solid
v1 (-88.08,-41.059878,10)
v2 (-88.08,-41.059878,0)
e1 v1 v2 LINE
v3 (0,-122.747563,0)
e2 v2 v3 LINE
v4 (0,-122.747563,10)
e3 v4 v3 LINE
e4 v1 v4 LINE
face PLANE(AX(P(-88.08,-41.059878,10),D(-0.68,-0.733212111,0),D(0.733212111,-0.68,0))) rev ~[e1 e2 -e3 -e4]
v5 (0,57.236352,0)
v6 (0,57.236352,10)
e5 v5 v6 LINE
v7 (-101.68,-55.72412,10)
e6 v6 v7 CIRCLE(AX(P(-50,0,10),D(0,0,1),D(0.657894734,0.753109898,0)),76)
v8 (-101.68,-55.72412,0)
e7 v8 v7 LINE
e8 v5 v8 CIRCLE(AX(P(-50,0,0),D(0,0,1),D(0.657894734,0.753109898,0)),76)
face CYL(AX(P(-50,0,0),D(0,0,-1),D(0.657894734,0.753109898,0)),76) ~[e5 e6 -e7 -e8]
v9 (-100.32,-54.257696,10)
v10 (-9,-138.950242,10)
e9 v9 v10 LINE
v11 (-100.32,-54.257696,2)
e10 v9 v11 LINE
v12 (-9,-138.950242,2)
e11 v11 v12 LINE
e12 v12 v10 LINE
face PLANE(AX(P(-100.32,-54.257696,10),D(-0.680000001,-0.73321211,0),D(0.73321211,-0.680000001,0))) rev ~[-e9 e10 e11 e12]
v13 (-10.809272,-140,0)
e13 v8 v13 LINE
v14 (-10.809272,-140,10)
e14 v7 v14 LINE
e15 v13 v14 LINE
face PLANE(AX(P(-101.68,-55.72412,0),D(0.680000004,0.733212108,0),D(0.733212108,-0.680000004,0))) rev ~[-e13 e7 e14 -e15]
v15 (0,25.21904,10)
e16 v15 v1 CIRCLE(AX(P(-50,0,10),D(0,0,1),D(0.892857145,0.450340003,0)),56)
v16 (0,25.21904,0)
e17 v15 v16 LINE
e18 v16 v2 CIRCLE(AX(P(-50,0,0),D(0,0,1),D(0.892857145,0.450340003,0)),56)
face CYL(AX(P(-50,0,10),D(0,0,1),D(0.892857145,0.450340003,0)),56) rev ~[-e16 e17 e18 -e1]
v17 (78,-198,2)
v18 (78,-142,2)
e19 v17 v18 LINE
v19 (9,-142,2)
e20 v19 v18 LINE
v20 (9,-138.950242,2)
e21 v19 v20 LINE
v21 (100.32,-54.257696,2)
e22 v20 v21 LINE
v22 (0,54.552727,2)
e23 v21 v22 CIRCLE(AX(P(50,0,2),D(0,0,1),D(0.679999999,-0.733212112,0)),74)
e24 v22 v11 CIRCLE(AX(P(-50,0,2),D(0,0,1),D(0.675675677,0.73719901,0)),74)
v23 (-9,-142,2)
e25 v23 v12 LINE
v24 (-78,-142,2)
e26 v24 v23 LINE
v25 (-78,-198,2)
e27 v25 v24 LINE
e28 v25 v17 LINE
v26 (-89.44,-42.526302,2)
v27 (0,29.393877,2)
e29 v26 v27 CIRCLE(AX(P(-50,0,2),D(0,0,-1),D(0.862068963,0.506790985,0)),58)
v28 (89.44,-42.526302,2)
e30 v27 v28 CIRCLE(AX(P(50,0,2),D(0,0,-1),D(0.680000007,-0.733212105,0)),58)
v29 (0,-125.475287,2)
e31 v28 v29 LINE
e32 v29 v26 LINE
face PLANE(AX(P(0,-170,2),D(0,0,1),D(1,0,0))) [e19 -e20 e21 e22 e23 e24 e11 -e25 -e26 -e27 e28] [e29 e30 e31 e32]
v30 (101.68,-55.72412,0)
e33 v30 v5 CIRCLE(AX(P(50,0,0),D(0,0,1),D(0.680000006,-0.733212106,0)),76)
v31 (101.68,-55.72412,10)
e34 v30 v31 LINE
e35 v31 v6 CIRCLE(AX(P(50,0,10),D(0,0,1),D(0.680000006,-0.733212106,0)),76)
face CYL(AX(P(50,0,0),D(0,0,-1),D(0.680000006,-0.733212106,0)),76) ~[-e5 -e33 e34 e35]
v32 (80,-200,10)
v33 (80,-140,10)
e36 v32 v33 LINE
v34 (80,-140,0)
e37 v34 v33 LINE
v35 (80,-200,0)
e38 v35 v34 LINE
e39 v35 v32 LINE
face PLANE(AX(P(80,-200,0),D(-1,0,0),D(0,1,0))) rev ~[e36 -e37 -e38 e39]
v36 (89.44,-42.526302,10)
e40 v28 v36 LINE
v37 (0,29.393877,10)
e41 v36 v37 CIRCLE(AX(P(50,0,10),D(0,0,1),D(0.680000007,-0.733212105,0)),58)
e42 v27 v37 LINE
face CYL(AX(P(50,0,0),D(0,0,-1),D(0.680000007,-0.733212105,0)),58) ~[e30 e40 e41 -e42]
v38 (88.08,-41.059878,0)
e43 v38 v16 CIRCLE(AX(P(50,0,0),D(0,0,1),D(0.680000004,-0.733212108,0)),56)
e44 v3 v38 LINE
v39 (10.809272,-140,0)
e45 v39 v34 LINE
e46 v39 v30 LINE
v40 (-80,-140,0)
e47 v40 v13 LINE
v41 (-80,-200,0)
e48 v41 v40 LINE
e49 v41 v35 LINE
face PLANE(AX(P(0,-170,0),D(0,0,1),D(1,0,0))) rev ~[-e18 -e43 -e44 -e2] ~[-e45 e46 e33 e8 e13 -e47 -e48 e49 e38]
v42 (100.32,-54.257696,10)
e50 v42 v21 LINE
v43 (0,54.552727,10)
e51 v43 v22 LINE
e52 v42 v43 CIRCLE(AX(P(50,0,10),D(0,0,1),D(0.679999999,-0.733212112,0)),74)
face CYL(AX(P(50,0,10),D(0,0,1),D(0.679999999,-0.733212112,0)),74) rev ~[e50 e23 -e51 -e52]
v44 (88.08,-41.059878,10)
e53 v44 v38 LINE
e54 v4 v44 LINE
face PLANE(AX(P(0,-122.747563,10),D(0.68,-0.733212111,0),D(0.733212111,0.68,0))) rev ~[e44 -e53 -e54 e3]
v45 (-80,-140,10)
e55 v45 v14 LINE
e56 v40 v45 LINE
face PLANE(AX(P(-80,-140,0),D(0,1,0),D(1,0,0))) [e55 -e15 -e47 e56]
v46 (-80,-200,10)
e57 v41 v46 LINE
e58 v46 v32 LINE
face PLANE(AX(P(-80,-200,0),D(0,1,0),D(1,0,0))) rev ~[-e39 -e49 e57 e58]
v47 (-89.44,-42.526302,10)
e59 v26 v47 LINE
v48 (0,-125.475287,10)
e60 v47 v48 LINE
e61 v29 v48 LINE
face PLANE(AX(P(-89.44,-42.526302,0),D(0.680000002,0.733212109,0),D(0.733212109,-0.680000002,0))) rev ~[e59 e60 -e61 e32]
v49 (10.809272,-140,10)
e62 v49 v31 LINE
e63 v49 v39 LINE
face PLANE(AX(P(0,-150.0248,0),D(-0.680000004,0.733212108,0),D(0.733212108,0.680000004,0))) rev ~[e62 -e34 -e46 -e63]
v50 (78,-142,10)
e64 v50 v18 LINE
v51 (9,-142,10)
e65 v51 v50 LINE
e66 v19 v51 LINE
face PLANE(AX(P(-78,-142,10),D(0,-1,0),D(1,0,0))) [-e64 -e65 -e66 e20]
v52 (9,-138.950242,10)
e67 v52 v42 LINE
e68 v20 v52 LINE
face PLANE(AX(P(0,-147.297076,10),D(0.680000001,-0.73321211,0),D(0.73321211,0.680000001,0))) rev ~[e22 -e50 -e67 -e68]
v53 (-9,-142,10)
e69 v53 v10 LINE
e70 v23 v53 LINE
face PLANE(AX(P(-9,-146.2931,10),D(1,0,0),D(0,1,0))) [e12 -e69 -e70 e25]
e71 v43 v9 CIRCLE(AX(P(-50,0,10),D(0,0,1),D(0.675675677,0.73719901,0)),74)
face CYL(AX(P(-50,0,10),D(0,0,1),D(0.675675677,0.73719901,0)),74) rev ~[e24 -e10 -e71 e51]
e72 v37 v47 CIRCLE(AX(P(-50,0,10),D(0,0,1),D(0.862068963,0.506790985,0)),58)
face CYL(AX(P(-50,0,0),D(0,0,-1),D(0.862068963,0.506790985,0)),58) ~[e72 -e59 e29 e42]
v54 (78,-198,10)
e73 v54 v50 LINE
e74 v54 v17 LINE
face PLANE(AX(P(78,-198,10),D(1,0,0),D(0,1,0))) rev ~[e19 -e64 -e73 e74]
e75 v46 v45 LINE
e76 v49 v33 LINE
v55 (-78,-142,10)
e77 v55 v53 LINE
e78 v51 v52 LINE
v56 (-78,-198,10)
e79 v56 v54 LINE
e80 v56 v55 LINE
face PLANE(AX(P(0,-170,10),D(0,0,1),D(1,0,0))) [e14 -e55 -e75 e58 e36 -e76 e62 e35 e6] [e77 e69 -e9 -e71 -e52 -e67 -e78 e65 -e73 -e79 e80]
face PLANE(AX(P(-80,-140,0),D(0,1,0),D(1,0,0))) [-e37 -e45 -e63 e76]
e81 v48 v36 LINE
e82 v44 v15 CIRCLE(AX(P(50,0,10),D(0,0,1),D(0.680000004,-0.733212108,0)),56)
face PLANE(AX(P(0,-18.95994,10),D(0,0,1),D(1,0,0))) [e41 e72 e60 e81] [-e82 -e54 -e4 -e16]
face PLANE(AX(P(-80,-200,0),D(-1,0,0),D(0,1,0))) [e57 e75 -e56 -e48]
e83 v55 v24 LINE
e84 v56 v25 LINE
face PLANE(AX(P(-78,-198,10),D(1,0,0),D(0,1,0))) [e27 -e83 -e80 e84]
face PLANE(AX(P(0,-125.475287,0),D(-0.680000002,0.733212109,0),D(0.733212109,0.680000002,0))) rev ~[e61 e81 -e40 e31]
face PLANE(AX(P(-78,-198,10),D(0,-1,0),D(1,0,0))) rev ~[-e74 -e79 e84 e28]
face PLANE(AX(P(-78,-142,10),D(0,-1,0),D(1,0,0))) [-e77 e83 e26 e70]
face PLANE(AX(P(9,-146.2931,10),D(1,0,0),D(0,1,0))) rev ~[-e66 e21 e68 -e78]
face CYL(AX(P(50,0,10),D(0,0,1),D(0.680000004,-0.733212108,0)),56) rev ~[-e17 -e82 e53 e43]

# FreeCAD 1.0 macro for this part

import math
import FreeCAD as App
import Part
import Sketcher

V = App.Vector


def add_polygon(sketch, points):
    """Adds a closed chain of lines whose ends are joined by coincident constraints."""
    first, n = sketch.GeometryCount, len(points)
    for a, b in zip(points, points[1:] + points[:1]):
        sketch.addGeometry(Part.LineSegment(App.Vector(*a, 0), App.Vector(*b, 0)), False)
    for i in range(n):
        sketch.addConstraint(Sketcher.Constraint("Coincident", first + i, 2, first + (i + 1) % n, 1))

doc = App.newDocument("Part")
params = doc.addObject("Spreadsheet::Sheet", "Params")
for row, (alias, value) in enumerate([
    ("sketch1_radius", "76 mm"),
    ("pad1_length", "10 mm"),
    ("sketch2_radius", "74 mm"),
    ("pocket1_length", "8 mm"),
    ("sketch3_radius", "58 mm"),
    ("pad2_length", "10 mm"),
    ("sketch4_radius", "56 mm"),
    ("sketch5_width", "160 mm"),
    ("sketch5_height", "60 mm"),
    ("pad3_length", "10 mm"),
    ("sketch6_width", "156 mm"),
    ("sketch6_height", "56 mm"),
    ("pocket3_length", "8 mm"),
    ("sketch7_width", "18 mm"),
    ("sketch7_height", "12 mm"),
    ("pocket4_length", "8 mm"),
], start=1):
    params.set(f"A{row}", alias)
    params.set(f"B{row}", "=" + value)
    params.setAlias(f"B{row}", alias)

body = doc.addObject("PartDesign::Body", "Body")

sketch1 = body.newObject("Sketcher::SketchObject", "Sketch")
sketch1.AttachmentSupport = (doc.getObject("XY_Plane"), [""])
sketch1.MapMode = "FlatFace"
sketch1.addGeometry(Part.ArcOfCircle(Part.Circle(V(-50, 0, 0), V(0, 0, 1), 76), math.radians(49), math.radians(227)), False)
sketch1.addGeometry(Part.LineSegment(V(-102, -56, 0), V(0, -150, 0)), False)
sketch1.addGeometry(Part.LineSegment(V(0, -150, 0), V(102, -56, 0)), False)
sketch1.addGeometry(Part.ArcOfCircle(Part.Circle(V(50, 0, 0), V(0, 0, 1), 76), math.radians(-47), math.radians(131)), False)
sketch1.addConstraint(Sketcher.Constraint("Tangent", 0, 2, 1, 1))
sketch1.addConstraint(Sketcher.Constraint("Coincident", 1, 2, 2, 1))
sketch1.addConstraint(Sketcher.Constraint("Tangent", 2, 2, 3, 1))
sketch1.addConstraint(Sketcher.Constraint("Coincident", 3, 2, 0, 1))
sketch1.addConstraint(Sketcher.Constraint("Equal", 0, 3))
sketch1.addConstraint(Sketcher.Constraint("Symmetric", 0, 3, 3, 3, -1, 1))
sketch1.addConstraint(Sketcher.Constraint("Symmetric", 0, 2, 2, 2, -2))
sketch1.addConstraint(Sketcher.Constraint("Radius", 0, 76.0))
sketch1.addConstraint(Sketcher.Constraint("DistanceX", 0, 3, -1, 1, 50.0))
sketch1.addConstraint(Sketcher.Constraint("DistanceX", 0, 2, -1, 1, 101.68))
sketch1.setExpression("Constraints[7]", "Params.sketch1_radius")
pad1 = body.newObject("PartDesign::Pad", "Pad")
pad1.Profile = sketch1
pad1.setExpression("Length", "Params.pad1_length")

sketch2 = body.newObject("Sketcher::SketchObject", "Sketch001")
sketch2.AttachmentSupport = (doc.getObject("XY_Plane"), [""])
sketch2.MapMode = "FlatFace"
sketch2.AttachmentOffset = App.Placement(V(0, 0, 10), App.Rotation())
sketch2.addGeometry(Part.ArcOfCircle(Part.Circle(V(-50, 0, 0), V(0, 0, 1), 74), math.radians(47), math.radians(227)), False)
sketch2.addGeometry(Part.LineSegment(V(-100, -54, 0), V(0, -147, 0)), False)
sketch2.addGeometry(Part.LineSegment(V(0, -147, 0), V(100, -54, 0)), False)
sketch2.addGeometry(Part.ArcOfCircle(Part.Circle(V(50, 0, 0), V(0, 0, 1), 74), math.radians(-47), math.radians(133)), False)
sketch2.addConstraint(Sketcher.Constraint("Tangent", 0, 2, 1, 1))
sketch2.addConstraint(Sketcher.Constraint("Coincident", 1, 2, 2, 1))
sketch2.addConstraint(Sketcher.Constraint("Tangent", 2, 2, 3, 1))
sketch2.addConstraint(Sketcher.Constraint("Coincident", 3, 2, 0, 1))
sketch2.addConstraint(Sketcher.Constraint("Equal", 0, 3))
sketch2.addConstraint(Sketcher.Constraint("Symmetric", 0, 3, 3, 3, -1, 1))
sketch2.addConstraint(Sketcher.Constraint("Symmetric", 0, 2, 2, 2, -2))
sketch2.addConstraint(Sketcher.Constraint("Radius", 0, 74.0))
sketch2.addConstraint(Sketcher.Constraint("DistanceX", 0, 3, -1, 1, 50.0))
sketch2.addConstraint(Sketcher.Constraint("DistanceX", 0, 2, -1, 1, 100.32))
sketch2.setExpression("Constraints[7]", "Params.sketch2_radius")
pocket1 = body.newObject("PartDesign::Pocket", "Pocket")
pocket1.Profile = sketch2
pocket1.setExpression("Length", "Params.pocket1_length")

sketch3 = body.newObject("Sketcher::SketchObject", "Sketch002")
sketch3.AttachmentSupport = (doc.getObject("XY_Plane"), [""])
sketch3.MapMode = "FlatFace"
sketch3.addGeometry(Part.ArcOfCircle(Part.Circle(V(-50, 0, 0), V(0, 0, 1), 58), math.radians(30), math.radians(227)), False)
sketch3.addGeometry(Part.LineSegment(V(-89, -43, 0), V(0, -125, 0)), False)
sketch3.addGeometry(Part.LineSegment(V(0, -125, 0), V(89, -43, 0)), False)
sketch3.addGeometry(Part.ArcOfCircle(Part.Circle(V(50, 0, 0), V(0, 0, 1), 58), math.radians(-47), math.radians(150)), False)
sketch3.addConstraint(Sketcher.Constraint("Tangent", 0, 2, 1, 1))
sketch3.addConstraint(Sketcher.Constraint("Coincident", 1, 2, 2, 1))
sketch3.addConstraint(Sketcher.Constraint("Tangent", 2, 2, 3, 1))
sketch3.addConstraint(Sketcher.Constraint("Coincident", 3, 2, 0, 1))
sketch3.addConstraint(Sketcher.Constraint("Equal", 0, 3))
sketch3.addConstraint(Sketcher.Constraint("Symmetric", 0, 3, 3, 3, -1, 1))
sketch3.addConstraint(Sketcher.Constraint("Symmetric", 0, 2, 2, 2, -2))
sketch3.addConstraint(Sketcher.Constraint("Radius", 0, 58.0))
sketch3.addConstraint(Sketcher.Constraint("DistanceX", 0, 3, -1, 1, 50.0))
sketch3.addConstraint(Sketcher.Constraint("DistanceX", 0, 2, -1, 1, 89.44))
sketch3.setExpression("Constraints[7]", "Params.sketch3_radius")
pad2 = body.newObject("PartDesign::Pad", "Pad001")
pad2.Profile = sketch3
pad2.setExpression("Length", "Params.pad2_length")

sketch4 = body.newObject("Sketcher::SketchObject", "Sketch003")
sketch4.AttachmentSupport = (doc.getObject("XY_Plane"), [""])
sketch4.MapMode = "FlatFace"
sketch4.AttachmentOffset = App.Placement(V(0, 0, 10), App.Rotation())
sketch4.addGeometry(Part.ArcOfCircle(Part.Circle(V(-50, 0, 0), V(0, 0, 1), 56), math.radians(27), math.radians(227)), False)
sketch4.addGeometry(Part.LineSegment(V(-88, -41, 0), V(0, -123, 0)), False)
sketch4.addGeometry(Part.LineSegment(V(0, -123, 0), V(88, -41, 0)), False)
sketch4.addGeometry(Part.ArcOfCircle(Part.Circle(V(50, 0, 0), V(0, 0, 1), 56), math.radians(-47), math.radians(153)), False)
sketch4.addConstraint(Sketcher.Constraint("Tangent", 0, 2, 1, 1))
sketch4.addConstraint(Sketcher.Constraint("Coincident", 1, 2, 2, 1))
sketch4.addConstraint(Sketcher.Constraint("Tangent", 2, 2, 3, 1))
sketch4.addConstraint(Sketcher.Constraint("Coincident", 3, 2, 0, 1))
sketch4.addConstraint(Sketcher.Constraint("Equal", 0, 3))
sketch4.addConstraint(Sketcher.Constraint("Symmetric", 0, 3, 3, 3, -1, 1))
sketch4.addConstraint(Sketcher.Constraint("Symmetric", 0, 2, 2, 2, -2))
sketch4.addConstraint(Sketcher.Constraint("Radius", 0, 56.0))
sketch4.addConstraint(Sketcher.Constraint("DistanceX", 0, 3, -1, 1, 50.0))
sketch4.addConstraint(Sketcher.Constraint("DistanceX", 0, 2, -1, 1, 88.08))
sketch4.setExpression("Constraints[7]", "Params.sketch4_radius")
pocket2 = body.newObject("PartDesign::Pocket", "Pocket001")
pocket2.Profile = sketch4
pocket2.Type = "ThroughAll"

sketch5 = body.newObject("Sketcher::SketchObject", "Sketch004")
sketch5.AttachmentSupport = (doc.getObject("XY_Plane"), [""])
sketch5.MapMode = "FlatFace"
add_polygon(sketch5, [(-80, -140), (-80, -200), (80, -200), (80, -140)])
sketch5.addConstraint(Sketcher.Constraint("Vertical", 0))
sketch5.addConstraint(Sketcher.Constraint("Horizontal", 1))
sketch5.addConstraint(Sketcher.Constraint("Vertical", 2))
sketch5.addConstraint(Sketcher.Constraint("Horizontal", 3))
sketch5.addConstraint(Sketcher.Constraint("DistanceX", 1, 1, 1, 2, 160.0))
sketch5.addConstraint(Sketcher.Constraint("DistanceY", 0, 2, 0, 1, 60.0))
sketch5.addConstraint(Sketcher.Constraint("DistanceX", 0, 2, -1, 1, 80.0))
sketch5.addConstraint(Sketcher.Constraint("DistanceY", 0, 2, -1, 1, 200.0))
sketch5.setExpression("Constraints[8]", "Params.sketch5_width")
sketch5.setExpression("Constraints[9]", "Params.sketch5_height")
pad3 = body.newObject("PartDesign::Pad", "Pad002")
pad3.Profile = sketch5
pad3.setExpression("Length", "Params.pad3_length")

sketch6 = body.newObject("Sketcher::SketchObject", "Sketch005")
sketch6.AttachmentSupport = (doc.getObject("XY_Plane"), [""])
sketch6.MapMode = "FlatFace"
sketch6.AttachmentOffset = App.Placement(V(0, 0, 10), App.Rotation())
add_polygon(sketch6, [(-78, -142), (-78, -198), (78, -198), (78, -142)])
sketch6.addConstraint(Sketcher.Constraint("Vertical", 0))
sketch6.addConstraint(Sketcher.Constraint("Horizontal", 1))
sketch6.addConstraint(Sketcher.Constraint("Vertical", 2))
sketch6.addConstraint(Sketcher.Constraint("Horizontal", 3))
sketch6.addConstraint(Sketcher.Constraint("DistanceX", 1, 1, 1, 2, 156.0))
sketch6.addConstraint(Sketcher.Constraint("DistanceY", 0, 2, 0, 1, 56.0))
sketch6.addConstraint(Sketcher.Constraint("DistanceX", 0, 2, -1, 1, 78.0))
sketch6.addConstraint(Sketcher.Constraint("DistanceY", 0, 2, -1, 1, 198.0))
sketch6.setExpression("Constraints[8]", "Params.sketch6_width")
sketch6.setExpression("Constraints[9]", "Params.sketch6_height")
pocket3 = body.newObject("PartDesign::Pocket", "Pocket002")
pocket3.Profile = sketch6
pocket3.setExpression("Length", "Params.pocket3_length")

sketch7 = body.newObject("Sketcher::SketchObject", "Sketch006")
sketch7.AttachmentSupport = (doc.getObject("XY_Plane"), [""])
sketch7.MapMode = "FlatFace"
sketch7.AttachmentOffset = App.Placement(V(0, 0, 10), App.Rotation())
add_polygon(sketch7, [(-9, -134), (-9, -146), (9, -146), (9, -134)])
sketch7.addConstraint(Sketcher.Constraint("Vertical", 0))
sketch7.addConstraint(Sketcher.Constraint("Horizontal", 1))
sketch7.addConstraint(Sketcher.Constraint("Vertical", 2))
sketch7.addConstraint(Sketcher.Constraint("Horizontal", 3))
sketch7.addConstraint(Sketcher.Constraint("DistanceX", 1, 1, 1, 2, 18.0))
sketch7.addConstraint(Sketcher.Constraint("DistanceY", 0, 2, 0, 1, 12.0))
sketch7.addConstraint(Sketcher.Constraint("DistanceX", 0, 2, -1, 1, 9.0))
sketch7.addConstraint(Sketcher.Constraint("DistanceY", 0, 2, -1, 1, 146.2931))
sketch7.setExpression("Constraints[8]", "Params.sketch7_width")
sketch7.setExpression("Constraints[9]", "Params.sketch7_height")
pocket4 = body.newObject("PartDesign::Pocket", "Pocket003")
pocket4.Profile = sketch7
pocket4.setExpression("Length", "Params.pocket4_length")

doc.recompute()
